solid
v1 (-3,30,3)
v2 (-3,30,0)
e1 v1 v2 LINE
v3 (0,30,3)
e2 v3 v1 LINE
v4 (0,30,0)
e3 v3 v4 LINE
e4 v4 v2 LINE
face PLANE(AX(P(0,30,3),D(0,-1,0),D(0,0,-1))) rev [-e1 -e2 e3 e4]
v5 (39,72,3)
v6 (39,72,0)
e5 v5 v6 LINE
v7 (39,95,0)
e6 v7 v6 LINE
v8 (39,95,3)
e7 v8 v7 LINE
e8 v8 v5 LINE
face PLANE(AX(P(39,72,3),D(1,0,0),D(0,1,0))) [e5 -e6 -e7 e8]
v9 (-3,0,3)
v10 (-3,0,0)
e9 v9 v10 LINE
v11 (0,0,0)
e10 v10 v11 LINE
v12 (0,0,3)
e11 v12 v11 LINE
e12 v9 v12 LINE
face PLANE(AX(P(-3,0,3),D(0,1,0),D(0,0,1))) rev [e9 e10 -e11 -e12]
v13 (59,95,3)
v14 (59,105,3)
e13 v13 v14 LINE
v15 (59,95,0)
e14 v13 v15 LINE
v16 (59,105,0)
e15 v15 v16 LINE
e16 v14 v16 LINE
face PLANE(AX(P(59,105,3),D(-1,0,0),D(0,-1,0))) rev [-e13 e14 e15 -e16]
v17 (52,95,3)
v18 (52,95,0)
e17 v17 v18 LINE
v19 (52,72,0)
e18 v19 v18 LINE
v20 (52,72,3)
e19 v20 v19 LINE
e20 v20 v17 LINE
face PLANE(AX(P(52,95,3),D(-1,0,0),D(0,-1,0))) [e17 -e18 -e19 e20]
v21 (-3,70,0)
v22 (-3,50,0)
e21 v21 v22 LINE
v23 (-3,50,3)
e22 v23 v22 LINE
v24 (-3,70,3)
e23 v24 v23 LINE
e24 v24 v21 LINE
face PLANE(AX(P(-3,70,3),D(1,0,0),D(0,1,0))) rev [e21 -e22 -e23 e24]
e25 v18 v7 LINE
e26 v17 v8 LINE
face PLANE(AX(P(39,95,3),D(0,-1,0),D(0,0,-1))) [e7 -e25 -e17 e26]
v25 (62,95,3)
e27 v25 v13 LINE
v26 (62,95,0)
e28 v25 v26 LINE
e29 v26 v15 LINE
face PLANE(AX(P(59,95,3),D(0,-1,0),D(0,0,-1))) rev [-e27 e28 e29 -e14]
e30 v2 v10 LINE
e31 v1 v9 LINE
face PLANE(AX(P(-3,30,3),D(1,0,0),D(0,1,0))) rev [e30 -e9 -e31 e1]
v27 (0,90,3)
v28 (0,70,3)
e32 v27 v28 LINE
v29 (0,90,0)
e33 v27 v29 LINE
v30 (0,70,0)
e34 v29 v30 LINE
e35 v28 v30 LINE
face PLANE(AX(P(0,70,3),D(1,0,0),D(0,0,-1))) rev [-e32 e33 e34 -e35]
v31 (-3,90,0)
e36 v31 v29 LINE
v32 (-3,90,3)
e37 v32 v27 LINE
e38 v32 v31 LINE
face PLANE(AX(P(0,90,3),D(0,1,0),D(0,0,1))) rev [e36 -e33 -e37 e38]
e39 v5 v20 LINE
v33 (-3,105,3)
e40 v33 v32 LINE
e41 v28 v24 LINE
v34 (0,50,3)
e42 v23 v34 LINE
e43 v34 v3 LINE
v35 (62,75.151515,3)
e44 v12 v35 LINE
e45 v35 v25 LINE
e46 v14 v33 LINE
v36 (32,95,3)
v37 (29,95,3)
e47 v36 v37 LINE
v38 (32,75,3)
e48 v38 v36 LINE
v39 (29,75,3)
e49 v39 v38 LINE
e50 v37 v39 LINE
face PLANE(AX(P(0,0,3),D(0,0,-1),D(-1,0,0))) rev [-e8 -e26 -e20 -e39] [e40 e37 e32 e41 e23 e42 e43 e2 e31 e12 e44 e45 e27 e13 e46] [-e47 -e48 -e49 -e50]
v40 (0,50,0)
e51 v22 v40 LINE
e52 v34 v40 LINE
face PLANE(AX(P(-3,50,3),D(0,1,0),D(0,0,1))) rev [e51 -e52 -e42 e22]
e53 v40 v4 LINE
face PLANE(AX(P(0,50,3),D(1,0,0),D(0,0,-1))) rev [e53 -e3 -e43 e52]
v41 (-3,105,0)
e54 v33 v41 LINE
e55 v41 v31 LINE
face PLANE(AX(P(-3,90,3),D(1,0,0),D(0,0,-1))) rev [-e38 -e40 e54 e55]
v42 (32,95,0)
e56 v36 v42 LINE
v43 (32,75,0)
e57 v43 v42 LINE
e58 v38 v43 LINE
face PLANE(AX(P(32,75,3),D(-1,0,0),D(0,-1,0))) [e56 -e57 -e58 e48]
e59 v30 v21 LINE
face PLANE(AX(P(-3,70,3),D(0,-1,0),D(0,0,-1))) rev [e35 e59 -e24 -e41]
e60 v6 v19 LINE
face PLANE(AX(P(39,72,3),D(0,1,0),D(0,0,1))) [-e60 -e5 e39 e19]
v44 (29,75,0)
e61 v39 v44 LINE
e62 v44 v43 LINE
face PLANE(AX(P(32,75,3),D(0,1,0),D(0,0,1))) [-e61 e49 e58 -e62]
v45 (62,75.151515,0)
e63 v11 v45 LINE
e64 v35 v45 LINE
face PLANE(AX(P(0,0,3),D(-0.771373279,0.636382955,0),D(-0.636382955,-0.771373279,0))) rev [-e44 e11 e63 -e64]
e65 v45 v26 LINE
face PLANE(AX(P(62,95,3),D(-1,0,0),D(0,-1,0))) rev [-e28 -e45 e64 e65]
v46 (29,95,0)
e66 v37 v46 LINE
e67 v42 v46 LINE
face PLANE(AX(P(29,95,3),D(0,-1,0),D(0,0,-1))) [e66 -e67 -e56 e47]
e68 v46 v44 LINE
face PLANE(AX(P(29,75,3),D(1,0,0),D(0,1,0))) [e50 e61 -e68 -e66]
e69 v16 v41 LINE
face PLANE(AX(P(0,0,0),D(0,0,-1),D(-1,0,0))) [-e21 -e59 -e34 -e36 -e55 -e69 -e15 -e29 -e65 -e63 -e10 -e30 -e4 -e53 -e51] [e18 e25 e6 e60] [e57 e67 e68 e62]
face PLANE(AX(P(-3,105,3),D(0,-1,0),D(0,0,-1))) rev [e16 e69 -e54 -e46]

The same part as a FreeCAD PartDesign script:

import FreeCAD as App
import Part
import Sketcher
from FreeCAD import Vector
Q = App.Units.Quantity


def add_polygon(sketch, points):
    """Adds a closed chain of lines whose ends are joined by coincident constraints."""
    first, n = sketch.GeometryCount, len(points)
    for a, b in zip(points, points[1:] + points[:1]):
        sketch.addGeometry(Part.LineSegment(App.Vector(*a, 0), App.Vector(*b, 0)), False)
    for i in range(n):
        sketch.addConstraint(Sketcher.Constraint("Coincident", first + i, 2, first + (i + 1) % n, 1))

doc = App.newDocument("Part")
params = doc.addObject("Spreadsheet::Sheet", "Params")
for row, (alias, value) in enumerate([
    ("sketch1_width", "3 mm"),
    ("sketch1_width2", "62 mm"),
    ("sketch1_width3", "13 mm"),
    ("sketch1_height", "20 mm"),
    ("sketch1_height2", "30 mm"),
    ("pad1_length", "3 mm"),
], start=1):
    params.set(f"A{row}", alias)
    params.set(f"B{row}", "=" + value)
    params.setAlias(f"B{row}", alias)

body = doc.addObject("PartDesign::Body", "Body")

sketch1 = body.newObject("Sketcher::SketchObject", "Sketch")
sketch1.AttachmentSupport = (doc.getObject("XY_Plane"), [""])
sketch1.MapMode = "FlatFace"
add_polygon(sketch1, [(-3, 70), (-3, 50), (0, 50), (0, 30), (-3, 30), (-3, 0), (0, 0), (62, 75.2), (62, 95), (59, 95), (59, 105), (-3, 105), (-3, 90), (0, 90), (0, 70)])
add_polygon(sketch1, [(32, 75), (29, 75), (29, 95), (32, 95)])
add_polygon(sketch1, [(52, 72), (39, 72), (39, 95), (52, 95)])
sketch1.addConstraint([
    Sketcher.Constraint("Vertical", 0),
    Sketcher.Constraint("Horizontal", 1),
    Sketcher.Constraint("Vertical", 2),
    Sketcher.Constraint("Horizontal", 3),
    Sketcher.Constraint("Vertical", 4),
    Sketcher.Constraint("Horizontal", 5),
    Sketcher.Constraint("Vertical", 7),
    Sketcher.Constraint("Horizontal", 8),
    Sketcher.Constraint("Vertical", 9),
    Sketcher.Constraint("Horizontal", 10),
    Sketcher.Constraint("Vertical", 11),
    Sketcher.Constraint("Horizontal", 12),
    Sketcher.Constraint("Vertical", 13),
    Sketcher.Constraint("Horizontal", 14),
    Sketcher.Constraint("Horizontal", 15),
    Sketcher.Constraint("Vertical", 16),
    Sketcher.Constraint("Horizontal", 17),
    Sketcher.Constraint("Vertical", 18),
    Sketcher.Constraint("Horizontal", 19),
    Sketcher.Constraint("Vertical", 20),
    Sketcher.Constraint("Horizontal", 21),
    Sketcher.Constraint("Vertical", 22),
    Sketcher.Constraint("Coincident", 5, 2, -1, 1),
    Sketcher.Constraint("PointOnObject", 1, 2, -2),
    Sketcher.Constraint("PointOnObject", 12, 2, -2),
    Sketcher.Constraint("Horizontal", 8, 2, 16, 2),
    Sketcher.Constraint("Horizontal", 17, 2, 20, 2),
    Sketcher.Constraint("Vertical", 0, 2, 3, 2),
    Sketcher.Constraint("Vertical", 4, 2, 10, 2),
    Sketcher.Constraint("Equal", 5, 8),
    Sketcher.Constraint("Equal", 14, 15),
    Sketcher.Constraint("Equal", 0, 2),
    Sketcher.Constraint("Equal", 2, 13),
    Sketcher.Constraint("Equal", 13, 16),
    Sketcher.Constraint("DistanceX", 1, 1, 1, 2, Q("3 mm")),
    Sketcher.Constraint("DistanceX", 10, 2, 10, 1, Q("62 mm")),
    Sketcher.Constraint("DistanceX", 19, 2, 19, 1, Q("13 mm")),
    Sketcher.Constraint("DistanceY", 0, 2, 0, 1, Q("20 mm")),
    Sketcher.Constraint("DistanceY", 4, 2, 4, 1, Q("30 mm")),
    Sketcher.Constraint("DistanceY", 9, 1, 9, 2, Q("10 mm")),
    Sketcher.Constraint("DistanceY", 11, 2, 11, 1, Q("15 mm")),
    Sketcher.Constraint("DistanceY", 20, 1, 20, 2, Q("23 mm")),
    Sketcher.Constraint("DistanceX", -1, 1, 15, 2, Q("29 mm")),
    Sketcher.Constraint("DistanceX", -1, 1, 19, 2, Q("39 mm")),
    Sketcher.Constraint("DistanceY", 7, 1, 7, 2, Q("19.848485 mm")),
])
sketch1.setExpression("Constraints[57]", "Params.sketch1_width")
sketch1.setExpression("Constraints[58]", "Params.sketch1_width2")
sketch1.setExpression("Constraints[59]", "Params.sketch1_width3")
sketch1.setExpression("Constraints[60]", "Params.sketch1_height")
sketch1.setExpression("Constraints[61]", "Params.sketch1_height2")
pad1 = body.newObject("PartDesign::Pad", "Pad")
pad1.Profile = sketch1
pad1.setExpression("Length", "Params.pad1_length")

doc.recompute()
